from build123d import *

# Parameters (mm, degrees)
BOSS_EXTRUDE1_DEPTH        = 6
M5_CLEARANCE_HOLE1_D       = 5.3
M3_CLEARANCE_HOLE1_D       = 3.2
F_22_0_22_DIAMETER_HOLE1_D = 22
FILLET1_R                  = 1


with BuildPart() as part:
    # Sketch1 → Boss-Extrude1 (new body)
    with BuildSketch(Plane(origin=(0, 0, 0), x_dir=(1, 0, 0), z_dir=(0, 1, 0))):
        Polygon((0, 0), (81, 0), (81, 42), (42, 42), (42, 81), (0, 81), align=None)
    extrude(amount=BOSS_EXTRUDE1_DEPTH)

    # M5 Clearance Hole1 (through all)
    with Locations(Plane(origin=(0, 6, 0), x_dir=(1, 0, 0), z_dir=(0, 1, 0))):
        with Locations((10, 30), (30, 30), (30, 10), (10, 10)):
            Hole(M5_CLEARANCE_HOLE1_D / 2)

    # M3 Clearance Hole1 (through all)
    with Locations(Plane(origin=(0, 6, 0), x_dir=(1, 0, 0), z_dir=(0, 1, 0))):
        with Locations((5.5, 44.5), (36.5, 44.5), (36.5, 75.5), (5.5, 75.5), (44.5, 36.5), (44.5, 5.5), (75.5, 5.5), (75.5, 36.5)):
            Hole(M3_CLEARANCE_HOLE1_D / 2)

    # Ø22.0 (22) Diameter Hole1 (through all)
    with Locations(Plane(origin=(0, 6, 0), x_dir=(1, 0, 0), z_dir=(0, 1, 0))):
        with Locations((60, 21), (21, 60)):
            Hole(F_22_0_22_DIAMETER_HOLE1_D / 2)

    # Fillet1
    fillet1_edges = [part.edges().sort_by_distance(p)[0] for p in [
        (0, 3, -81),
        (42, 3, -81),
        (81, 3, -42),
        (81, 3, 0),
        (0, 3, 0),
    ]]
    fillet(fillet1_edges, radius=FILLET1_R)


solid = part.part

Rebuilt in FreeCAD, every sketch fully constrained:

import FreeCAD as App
import Part
import Sketcher
Q = App.Units.Quantity


def edges_at(feature, points):
    """Names of the edges that pass closest to the given points."""
    edges = feature.Shape.Edges
    near = lambda p: min(range(len(edges)), key=lambda i: edges[i].distToShape(Part.Vertex(*p))[0])
    return sorted({f"Edge{near(p) + 1}" for p in points})


def add_polygon(sketch, points):
    """Adds a closed chain of lines whose ends are joined by coincident constraints."""
    first, n = sketch.GeometryCount, len(points)
    for a, b in zip(points, points[1:] + points[:1]):
        sketch.addGeometry(Part.LineSegment(App.Vector(*a, 0), App.Vector(*b, 0)), False)
    for i in range(n):
        sketch.addConstraint(Sketcher.Constraint("Coincident", first + i, 2, first + (i + 1) % n, 1))

doc = App.newDocument("Part")
body = doc.addObject("PartDesign::Body", "Body")

sketch1 = body.newObject("Sketcher::SketchObject", "Sketch")
sketch1.AttachmentSupport = (doc.getObject("XZ_Plane"), [""])
sketch1.MapMode = "FlatFace"
add_polygon(sketch1, [(0, 0), (81, 0), (81, -42), (42, -42), (42, -81), (0, -81)])
sketch1.addConstraint(Sketcher.Constraint("Horizontal", 0))
sketch1.addConstraint(Sketcher.Constraint("Vertical", 1))
sketch1.addConstraint(Sketcher.Constraint("Horizontal", 2))
sketch1.addConstraint(Sketcher.Constraint("Vertical", 3))
sketch1.addConstraint(Sketcher.Constraint("Horizontal", 4))
sketch1.addConstraint(Sketcher.Constraint("Vertical", 5))
sketch1.addConstraint(Sketcher.Constraint("Coincident", 5, 2, -1, 1))
sketch1.addConstraint(Sketcher.Constraint("Equal", 4, 1))
sketch1.addConstraint(Sketcher.Constraint("Equal", 2, 3))
sketch1.addConstraint(Sketcher.Constraint("DistanceX", 0, 1, 0, 2, Q("81 mm")))
sketch1.addConstraint(Sketcher.Constraint("DistanceX", 2, 2, 2, 1, Q("39 mm")))
pad1 = body.newObject("PartDesign::Pad", "Pad")
pad1.Profile = sketch1
pad1.Length = 6
pad1.Reversed = True

sketch2 = body.newObject("Sketcher::SketchObject", "Sketch001")
sketch2.AttachmentSupport = (doc.getObject("XZ_Plane"), [""])
sketch2.MapMode = "FlatFace"
sketch2.AttachmentOffset = App.Placement(App.Vector(0, 0, -6), App.Rotation())
sketch2.addGeometry(Part.Circle(App.Vector(10, -30, 0), App.Vector(0, 0, 1), 2.65), False)
sketch2.addGeometry(Part.Circle(App.Vector(30, -30, 0), App.Vector(0, 0, 1), 2.65), False)
sketch2.addGeometry(Part.Circle(App.Vector(30, -10, 0), App.Vector(0, 0, 1), 2.65), False)
sketch2.addGeometry(Part.Circle(App.Vector(10, -10, 0), App.Vector(0, 0, 1), 2.65), False)
sketch2.addConstraint(Sketcher.Constraint("Equal", 0, 1))
sketch2.addConstraint(Sketcher.Constraint("Equal", 1, 2))
sketch2.addConstraint(Sketcher.Constraint("Equal", 2, 3))
sketch2.addConstraint(Sketcher.Constraint("Horizontal", 0, 3, 1, 3))
sketch2.addConstraint(Sketcher.Constraint("Horizontal", 2, 3, 3, 3))
sketch2.addConstraint(Sketcher.Constraint("Vertical", 1, 3, 2, 3))
sketch2.addConstraint(Sketcher.Constraint("Vertical", 0, 3, 3, 3))
sketch2.addConstraint(Sketcher.Constraint("Diameter", 0, Q("5.3 mm")))
sketch2.addConstraint(Sketcher.Constraint("DistanceX", -1, 1, 0, 3, Q("10 mm")))
sketch2.addConstraint(Sketcher.Constraint("DistanceY", 0, 3, -1, 1, Q("30 mm")))
sketch2.addConstraint(Sketcher.Constraint("DistanceX", -1, 1, 1, 3, Q("30 mm")))
sketch2.addConstraint(Sketcher.Constraint("DistanceY", 2, 3, -1, 1, Q("10 mm")))
doc.recompute()
hole = body.newObject("PartDesign::Hole", "Hole")
hole.Profile = sketch2
hole.ThreadType = "None"
hole.Diameter = 5.3
hole.DepthType = "ThroughAll"
hole.Reversed = True

sketch3 = body.newObject("Sketcher::SketchObject", "Sketch002")
sketch3.AttachmentSupport = (doc.getObject("XZ_Plane"), [""])
sketch3.MapMode = "FlatFace"
sketch3.AttachmentOffset = App.Placement(App.Vector(0, 0, -6), App.Rotation())
sketch3.addGeometry(Part.Circle(App.Vector(5.5, -44.5, 0), App.Vector(0, 0, 1), 1.6), False)
sketch3.addGeometry(Part.Circle(App.Vector(36.5, -44.5, 0), App.Vector(0, 0, 1), 1.6), False)
sketch3.addGeometry(Part.Circle(App.Vector(36.5, -75.5, 0), App.Vector(0, 0, 1), 1.6), False)
sketch3.addGeometry(Part.Circle(App.Vector(5.5, -75.5, 0), App.Vector(0, 0, 1), 1.6), False)
sketch3.addGeometry(Part.Circle(App.Vector(44.5, -36.5, 0), App.Vector(0, 0, 1), 1.6), False)
sketch3.addGeometry(Part.Circle(App.Vector(44.5, -5.5, 0), App.Vector(0, 0, 1), 1.6), False)
sketch3.addGeometry(Part.Circle(App.Vector(75.5, -5.5, 0), App.Vector(0, 0, 1), 1.6), False)
sketch3.addGeometry(Part.Circle(App.Vector(75.5, -36.5, 0), App.Vector(0, 0, 1), 1.6), False)
sketch3.addConstraint(Sketcher.Constraint("Equal", 0, 1))
sketch3.addConstraint(Sketcher.Constraint("Equal", 1, 2))
sketch3.addConstraint(Sketcher.Constraint("Equal", 2, 3))
sketch3.addConstraint(Sketcher.Constraint("Equal", 3, 4))
sketch3.addConstraint(Sketcher.Constraint("Equal", 4, 5))
sketch3.addConstraint(Sketcher.Constraint("Equal", 5, 6))
sketch3.addConstraint(Sketcher.Constraint("Equal", 6, 7))
sketch3.addConstraint(Sketcher.Constraint("Horizontal", 0, 3, 1, 3))
sketch3.addConstraint(Sketcher.Constraint("Horizontal", 2, 3, 3, 3))
sketch3.addConstraint(Sketcher.Constraint("Horizontal", 5, 3, 6, 3))
sketch3.addConstraint(Sketcher.Constraint("Horizontal", 4, 3, 7, 3))
sketch3.addConstraint(Sketcher.Constraint("Vertical", 1, 3, 2, 3))
sketch3.addConstraint(Sketcher.Constraint("Vertical", 0, 3, 3, 3))
sketch3.addConstraint(Sketcher.Constraint("Vertical", 4, 3, 5, 3))
sketch3.addConstraint(Sketcher.Constraint("Vertical", 6, 3, 7, 3))
sketch3.addConstraint(Sketcher.Constraint("Diameter", 0, Q("3.2 mm")))
sketch3.addConstraint(Sketcher.Constraint("DistanceX", 0, 3, 1, 3, Q("31 mm")))
sketch3.addConstraint(Sketcher.Constraint("DistanceY", 2, 3, 1, 3, Q("31 mm")))
sketch3.addConstraint(Sketcher.Constraint("DistanceX", 1, 3, 4, 3, Q("8 mm")))
sketch3.addConstraint(Sketcher.Constraint("DistanceY", 1, 3, 4, 3, Q("8 mm")))
sketch3.addConstraint(Sketcher.Constraint("DistanceY", 4, 3, 5, 3, Q("31 mm")))
sketch3.addConstraint(Sketcher.Constraint("DistanceX", 5, 3, 6, 3, Q("31 mm")))
sketch3.addConstraint(Sketcher.Constraint("DistanceX", -1, 1, 0, 3, Q("5.5 mm")))
sketch3.addConstraint(Sketcher.Constraint("DistanceY", 0, 3, -1, 1, Q("44.5 mm")))
doc.recompute()
hole2 = body.newObject("PartDesign::Hole", "Hole001")
hole2.Profile = sketch3
hole2.ThreadType = "None"
hole2.Diameter = 3.2
hole2.DepthType = "ThroughAll"
hole2.Reversed = True

sketch4 = body.newObject("Sketcher::SketchObject", "Sketch003")
sketch4.AttachmentSupport = (doc.getObject("XZ_Plane"), [""])
sketch4.MapMode = "FlatFace"
sketch4.AttachmentOffset = App.Placement(App.Vector(0, 0, -6), App.Rotation())
sketch4.addGeometry(Part.Circle(App.Vector(60, -21, 0), App.Vector(0, 0, 1), 11), False)
sketch4.addGeometry(Part.Circle(App.Vector(21, -60, 0), App.Vector(0, 0, 1), 11), False)
sketch4.addConstraint(Sketcher.Constraint("Equal", 0, 1))
sketch4.addConstraint(Sketcher.Constraint("Diameter", 0, Q("22 mm")))
sketch4.addConstraint(Sketcher.Constraint("DistanceX", -1, 1, 0, 3, Q("60 mm")))
sketch4.addConstraint(Sketcher.Constraint("DistanceY", 0, 3, -1, 1, Q("21 mm")))
sketch4.addConstraint(Sketcher.Constraint("DistanceX", -1, 1, 1, 3, Q("21 mm")))
sketch4.addConstraint(Sketcher.Constraint("DistanceY", 1, 3, -1, 1, Q("60 mm")))
doc.recompute()
hole3 = body.newObject("PartDesign::Hole", "Hole002")
hole3.Profile = sketch4
hole3.ThreadType = "None"
hole3.Diameter = 22
hole3.DepthType = "ThroughAll"
hole3.Reversed = True
doc.recompute()

fillet = body.newObject("PartDesign::Fillet", "Fillet")
fillet.Base = (hole3, edges_at(hole3, [
    (0, 3, -81),
    (42, 3, -81),
    (81, 3, -42),
    (81, 3, 0),
    (0, 3, 0),
]))
fillet.Radius = 1

doc.recompute()
